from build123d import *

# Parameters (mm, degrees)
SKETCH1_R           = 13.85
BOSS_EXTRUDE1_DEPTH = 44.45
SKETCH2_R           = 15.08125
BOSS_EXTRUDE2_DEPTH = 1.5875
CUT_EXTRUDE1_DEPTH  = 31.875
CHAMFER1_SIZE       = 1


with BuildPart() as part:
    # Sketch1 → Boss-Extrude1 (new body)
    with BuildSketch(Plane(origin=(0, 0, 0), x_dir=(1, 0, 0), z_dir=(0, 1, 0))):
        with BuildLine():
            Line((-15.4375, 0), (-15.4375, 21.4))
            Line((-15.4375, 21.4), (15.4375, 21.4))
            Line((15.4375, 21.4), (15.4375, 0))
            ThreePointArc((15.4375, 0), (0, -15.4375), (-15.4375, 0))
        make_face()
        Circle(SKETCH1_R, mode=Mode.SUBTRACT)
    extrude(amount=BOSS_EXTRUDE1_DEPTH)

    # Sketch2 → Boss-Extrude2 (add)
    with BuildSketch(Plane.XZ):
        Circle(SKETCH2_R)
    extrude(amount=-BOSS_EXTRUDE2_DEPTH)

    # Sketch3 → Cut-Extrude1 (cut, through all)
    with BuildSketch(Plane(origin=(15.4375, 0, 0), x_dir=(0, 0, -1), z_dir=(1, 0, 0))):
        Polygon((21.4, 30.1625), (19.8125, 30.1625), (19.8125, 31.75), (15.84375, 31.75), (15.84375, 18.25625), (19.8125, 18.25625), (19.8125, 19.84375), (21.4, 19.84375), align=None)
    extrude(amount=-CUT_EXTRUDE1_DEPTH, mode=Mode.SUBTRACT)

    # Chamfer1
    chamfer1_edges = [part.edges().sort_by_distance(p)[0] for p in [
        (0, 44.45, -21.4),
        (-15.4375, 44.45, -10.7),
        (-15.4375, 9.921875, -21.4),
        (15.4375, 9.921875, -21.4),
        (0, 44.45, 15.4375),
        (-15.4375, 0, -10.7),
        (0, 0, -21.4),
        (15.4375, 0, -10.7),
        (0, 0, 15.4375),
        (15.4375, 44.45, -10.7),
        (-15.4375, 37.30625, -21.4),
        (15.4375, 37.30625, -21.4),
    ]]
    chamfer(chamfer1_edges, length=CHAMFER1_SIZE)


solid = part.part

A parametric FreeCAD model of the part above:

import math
import FreeCAD as App
import Part
import Sketcher

V = App.Vector
Q = App.Units.Quantity


def edges_at(feature, points):
    """Names of the edges that pass closest to the given points."""
    edges = feature.Shape.Edges
    near = lambda p: min(range(len(edges)), key=lambda i: edges[i].distToShape(Part.Vertex(*p))[0])
    return sorted({f"Edge{near(p) + 1}" for p in points})

doc = App.newDocument("Part")
params = doc.addObject("Spreadsheet::Sheet", "Params")
for row, (alias, value) in enumerate([
    ("pad1_length", "1.75 in"),
    ("sketch2_diameter", "1.1875 in"),
    ("pad2_length", "0.0625 in"),
    ("sketch3_width", "0.0625 in"),
    ("sketch3_width2", "0.53125 in"),
    ("sketch3_height", "0.15625 in"),
    ("chamfer_size", "1 mm"),
], start=1):
    params.set(f"A{row}", alias)
    params.set(f"B{row}", "=" + value)
    params.setAlias(f"B{row}", alias)

body = doc.addObject("PartDesign::Body", "Body")

sketch1 = body.newObject("Sketcher::SketchObject", "Sketch")
sketch1.AttachmentSupport = (doc.getObject("XZ_Plane"), [""])
sketch1.MapMode = "FlatFace"
sketch1.addGeometry(Part.LineSegment(V(-15, -21, 0), V(-15, 0, 0)), False)
sketch1.addGeometry(Part.ArcOfCircle(Part.Circle(V(0, 0, 0), V(0, 0, 1), 15), math.radians(0), math.radians(180)), False)
sketch1.addGeometry(Part.LineSegment(V(15, 0, 0), V(15, -21, 0)), False)
sketch1.addGeometry(Part.LineSegment(V(15, -21, 0), V(-15, -21, 0)), False)
sketch1.addGeometry(Part.Circle(V(0, 0, 0), V(0, 0, 1), 14), False)
sketch1.addConstraint(Sketcher.Constraint("Tangent", 0, 2, 1, 2))
sketch1.addConstraint(Sketcher.Constraint("Tangent", 1, 1, 2, 1))
sketch1.addConstraint(Sketcher.Constraint("Coincident", 2, 2, 3, 1))
sketch1.addConstraint(Sketcher.Constraint("Coincident", 3, 2, 0, 1))
sketch1.addConstraint(Sketcher.Constraint("Vertical", 0))
sketch1.addConstraint(Sketcher.Constraint("Vertical", 2))
sketch1.addConstraint(Sketcher.Constraint("Horizontal", 3))
sketch1.addConstraint(Sketcher.Constraint("Coincident", 1, 3, -1, 1))
sketch1.addConstraint(Sketcher.Constraint("Coincident", 4, 3, -1, 1))
sketch1.addConstraint(Sketcher.Constraint("Diameter", 4, Q("27.7 mm")))
sketch1.addConstraint(Sketcher.Constraint("Radius", 1, Q("15.4375 mm")))
sketch1.addConstraint(Sketcher.Constraint("DistanceY", 0, 1, 0, 2, Q("21.4 mm")))
pad1 = body.newObject("PartDesign::Pad", "Pad")
pad1.Profile = sketch1
pad1.setExpression("Length", "Params.pad1_length")
pad1.Reversed = True

sketch2 = body.newObject("Sketcher::SketchObject", "Sketch001")
sketch2.AttachmentSupport = (doc.getObject("XZ_Plane"), [""])
sketch2.MapMode = "FlatFace"
sketch2.addGeometry(Part.Circle(V(0, 0, 0), V(0, 0, 1), 15), False)
sketch2.addConstraint(Sketcher.Constraint("Coincident", 0, 3, -1, 1))
sketch2.addConstraint(Sketcher.Constraint("Diameter", 0, Q("1.1875 in")))
sketch2.setExpression("Constraints[1]", "Params.sketch2_diameter")
pad2 = body.newObject("PartDesign::Pad", "Pad001")
pad2.Profile = sketch2
pad2.setExpression("Length", "Params.pad2_length")
pad2.Reversed = True

sketch3 = body.newObject("Sketcher::SketchObject", "Sketch002")
sketch3.AttachmentSupport = (doc.getObject("YZ_Plane"), [""])
sketch3.MapMode = "FlatFace"
sketch3.AttachmentOffset = App.Placement(V(0, 0, 15.4375), App.Rotation())
sketch3.addGeometry(Part.LineSegment(V(30.2, -21.4, 0), V(30.2, -19.8, 0)), False)
sketch3.addGeometry(Part.LineSegment(V(30.2, -19.8, 0), V(31.8, -19.8, 0)), False)
sketch3.addGeometry(Part.LineSegment(V(31.8, -19.8, 0), V(31.8, -15.8, 0)), False)
sketch3.addGeometry(Part.LineSegment(V(31.8, -15.8, 0), V(18.3, -15.8, 0)), False)
sketch3.addGeometry(Part.LineSegment(V(18.3, -15.8, 0), V(18.3, -19.8, 0)), False)
sketch3.addGeometry(Part.LineSegment(V(18.3, -19.8, 0), V(19.8, -19.8, 0)), False)
sketch3.addGeometry(Part.LineSegment(V(19.8, -19.8, 0), V(19.8, -21.4, 0)), False)
sketch3.addGeometry(Part.LineSegment(V(19.8, -21.4, 0), V(30.2, -21.4, 0)), False)
sketch3.addConstraint(Sketcher.Constraint("Coincident", 0, 2, 1, 1))
sketch3.addConstraint(Sketcher.Constraint("Coincident", 1, 2, 2, 1))
sketch3.addConstraint(Sketcher.Constraint("Coincident", 2, 2, 3, 1))
sketch3.addConstraint(Sketcher.Constraint("Coincident", 3, 2, 4, 1))
sketch3.addConstraint(Sketcher.Constraint("Coincident", 4, 2, 5, 1))
sketch3.addConstraint(Sketcher.Constraint("Coincident", 5, 2, 6, 1))
sketch3.addConstraint(Sketcher.Constraint("Coincident", 6, 2, 7, 1))
sketch3.addConstraint(Sketcher.Constraint("Coincident", 7, 2, 0, 1))
sketch3.addConstraint(Sketcher.Constraint("Vertical", 0))
sketch3.addConstraint(Sketcher.Constraint("Horizontal", 1))
sketch3.addConstraint(Sketcher.Constraint("Vertical", 2))
sketch3.addConstraint(Sketcher.Constraint("Horizontal", 3))
sketch3.addConstraint(Sketcher.Constraint("Vertical", 4))
sketch3.addConstraint(Sketcher.Constraint("Horizontal", 5))
sketch3.addConstraint(Sketcher.Constraint("Vertical", 6))
sketch3.addConstraint(Sketcher.Constraint("Horizontal", 7))
sketch3.addConstraint(Sketcher.Constraint("Horizontal", 1, 2, 4, 2))
sketch3.addConstraint(Sketcher.Constraint("Equal", 1, 5))
sketch3.addConstraint(Sketcher.Constraint("Equal", 5, 0))
sketch3.addConstraint(Sketcher.Constraint("DistanceX", 1, 1, 1, 2, Q("0.0625 in")))
sketch3.addConstraint(Sketcher.Constraint("DistanceX", 3, 2, 3, 1, Q("0.53125 in")))
sketch3.addConstraint(Sketcher.Constraint("DistanceY", 2, 1, 2, 2, Q("0.15625 in")))
sketch3.addConstraint(Sketcher.Constraint("DistanceX", -1, 1, 1, 2, Q("1.25 in")))
sketch3.addConstraint(Sketcher.Constraint("DistanceY", 0, 2, -1, 1, Q("19.8125 mm")))
sketch3.setExpression("Constraints[19]", "Params.sketch3_width")
sketch3.setExpression("Constraints[20]", "Params.sketch3_width2")
sketch3.setExpression("Constraints[21]", "Params.sketch3_height")
pocket1 = body.newObject("PartDesign::Pocket", "Pocket")
pocket1.Profile = sketch3
pocket1.Type = "ThroughAll"
doc.recompute()

chamfer = body.newObject("PartDesign::Chamfer", "Chamfer")
chamfer.Base = (pocket1, edges_at(pocket1, [
    (0, 44.45, -21.4),
    (-15.438, 44.45, -10.7),
    (-15.438, 9.922, -21.4),
    (15.438, 9.922, -21.4),
    (0, 44.45, 15.438),
    (-15.438, 0, -10.7),
    (0, 0, -21.4),
    (15.438, 0, -10.7),
    (0, 0, 15.438),
    (15.438, 44.45, -10.7),
    (-15.438, 37.306, -21.4),
    (15.438, 37.306, -21.4),
]))
chamfer.setExpression("Size", "Params.chamfer_size")

doc.recompute()
